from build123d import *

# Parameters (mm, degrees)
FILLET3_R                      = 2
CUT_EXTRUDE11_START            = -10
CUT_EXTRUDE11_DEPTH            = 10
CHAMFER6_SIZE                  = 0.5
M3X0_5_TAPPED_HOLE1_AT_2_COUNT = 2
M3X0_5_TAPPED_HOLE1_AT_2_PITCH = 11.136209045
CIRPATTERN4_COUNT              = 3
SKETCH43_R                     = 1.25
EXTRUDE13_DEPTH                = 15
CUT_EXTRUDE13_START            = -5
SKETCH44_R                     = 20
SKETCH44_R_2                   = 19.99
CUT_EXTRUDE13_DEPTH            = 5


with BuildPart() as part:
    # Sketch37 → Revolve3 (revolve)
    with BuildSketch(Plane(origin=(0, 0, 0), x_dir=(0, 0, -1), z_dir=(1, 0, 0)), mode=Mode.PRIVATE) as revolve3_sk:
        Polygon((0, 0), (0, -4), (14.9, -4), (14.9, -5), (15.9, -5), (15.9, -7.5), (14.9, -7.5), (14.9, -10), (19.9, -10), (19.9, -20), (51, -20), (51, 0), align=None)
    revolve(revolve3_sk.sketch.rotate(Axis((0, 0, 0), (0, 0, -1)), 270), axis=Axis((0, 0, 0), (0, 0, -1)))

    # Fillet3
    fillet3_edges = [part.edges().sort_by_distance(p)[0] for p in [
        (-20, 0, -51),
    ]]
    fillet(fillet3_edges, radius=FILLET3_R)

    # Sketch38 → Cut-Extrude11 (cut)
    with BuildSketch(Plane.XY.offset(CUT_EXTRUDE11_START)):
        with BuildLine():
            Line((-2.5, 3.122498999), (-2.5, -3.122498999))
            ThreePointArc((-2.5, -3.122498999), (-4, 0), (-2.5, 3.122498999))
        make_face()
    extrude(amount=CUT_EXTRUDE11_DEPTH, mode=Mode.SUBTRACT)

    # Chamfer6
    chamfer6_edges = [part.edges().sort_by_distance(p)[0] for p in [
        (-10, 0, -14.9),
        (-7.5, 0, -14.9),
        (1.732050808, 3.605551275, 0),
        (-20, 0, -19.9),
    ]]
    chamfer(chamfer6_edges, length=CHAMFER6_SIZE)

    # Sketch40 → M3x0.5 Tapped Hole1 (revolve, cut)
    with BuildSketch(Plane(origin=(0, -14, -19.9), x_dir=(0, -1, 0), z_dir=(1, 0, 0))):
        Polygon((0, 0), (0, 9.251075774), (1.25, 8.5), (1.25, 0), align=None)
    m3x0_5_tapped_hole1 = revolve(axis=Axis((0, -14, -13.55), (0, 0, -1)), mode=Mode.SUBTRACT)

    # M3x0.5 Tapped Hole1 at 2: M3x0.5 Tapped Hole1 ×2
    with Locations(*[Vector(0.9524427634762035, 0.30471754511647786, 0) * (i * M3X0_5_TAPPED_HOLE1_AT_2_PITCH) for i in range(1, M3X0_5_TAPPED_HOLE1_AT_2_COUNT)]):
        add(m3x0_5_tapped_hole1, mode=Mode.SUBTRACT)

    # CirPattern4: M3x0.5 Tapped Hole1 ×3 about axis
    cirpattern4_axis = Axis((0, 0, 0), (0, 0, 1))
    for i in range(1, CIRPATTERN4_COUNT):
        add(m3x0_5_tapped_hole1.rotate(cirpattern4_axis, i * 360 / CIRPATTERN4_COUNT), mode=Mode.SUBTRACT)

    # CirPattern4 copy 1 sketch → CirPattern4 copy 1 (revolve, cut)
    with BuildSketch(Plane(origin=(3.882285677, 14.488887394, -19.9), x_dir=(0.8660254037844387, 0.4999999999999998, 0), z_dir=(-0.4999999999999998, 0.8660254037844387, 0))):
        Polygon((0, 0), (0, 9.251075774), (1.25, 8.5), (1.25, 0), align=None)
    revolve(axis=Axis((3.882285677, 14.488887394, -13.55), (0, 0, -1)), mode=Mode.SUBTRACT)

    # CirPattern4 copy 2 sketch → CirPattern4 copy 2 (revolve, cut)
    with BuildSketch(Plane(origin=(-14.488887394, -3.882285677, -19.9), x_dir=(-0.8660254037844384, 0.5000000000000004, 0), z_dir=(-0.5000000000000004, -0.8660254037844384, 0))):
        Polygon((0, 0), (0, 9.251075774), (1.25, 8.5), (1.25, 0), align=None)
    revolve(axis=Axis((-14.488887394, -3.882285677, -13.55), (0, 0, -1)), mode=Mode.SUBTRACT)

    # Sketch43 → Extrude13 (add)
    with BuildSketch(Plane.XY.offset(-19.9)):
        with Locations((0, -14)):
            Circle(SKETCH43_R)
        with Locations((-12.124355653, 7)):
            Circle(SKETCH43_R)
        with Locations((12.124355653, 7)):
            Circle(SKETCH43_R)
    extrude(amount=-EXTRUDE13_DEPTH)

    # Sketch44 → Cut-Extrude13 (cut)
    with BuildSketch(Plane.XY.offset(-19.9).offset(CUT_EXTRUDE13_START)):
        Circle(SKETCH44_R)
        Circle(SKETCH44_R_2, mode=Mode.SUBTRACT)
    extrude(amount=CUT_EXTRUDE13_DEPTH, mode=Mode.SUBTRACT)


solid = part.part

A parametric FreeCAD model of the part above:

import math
import FreeCAD as App
import Part
import Sketcher
Q = App.Units.Quantity


def edges_at(feature, points):
    """Names of the edges that pass closest to the given points."""
    edges = feature.Shape.Edges
    near = lambda p: min(range(len(edges)), key=lambda i: edges[i].distToShape(Part.Vertex(*p))[0])
    return sorted({f"Edge{near(p) + 1}" for p in points})

doc = App.newDocument("Part")
body = doc.addObject("PartDesign::Body", "Body")

# Sketch on YZ plane
sketch1 = doc.addObject("Sketcher::SketchObject", "Sketch")
body.addObject(sketch1)
sketch1.AttachmentSupport = (doc.YZ_Plane, [""])
sketch1.MapMode = "FlatFace"
sketch1.addGeometry([
    Part.LineSegment(App.Vector(0, 0, 0), App.Vector(-4, 0, 0)),  # 0
    Part.LineSegment(App.Vector(-4, 0, 0), App.Vector(-4, -14.9, 0)),  # 1
    Part.LineSegment(App.Vector(-4, -14.9, 0), App.Vector(-5, -14.9, 0)),  # 2
    Part.LineSegment(App.Vector(-5, -14.9, 0), App.Vector(-5, -15.9, 0)),  # 3
    Part.LineSegment(App.Vector(-5, -15.9, 0), App.Vector(-7.5, -15.9, 0)),  # 4
    Part.LineSegment(App.Vector(-7.5, -15.9, 0), App.Vector(-7.5, -14.9, 0)),  # 5
    Part.LineSegment(App.Vector(-7.5, -14.9, 0), App.Vector(-10, -14.9, 0)),  # 6
    Part.LineSegment(App.Vector(-10, -14.9, 0), App.Vector(-10, -19.9, 0)),  # 7
    Part.LineSegment(App.Vector(-10, -19.9, 0), App.Vector(-20, -19.9, 0)),  # 8
    Part.LineSegment(App.Vector(-20, -19.9, 0), App.Vector(-20, -51, 0)),  # 9
    Part.LineSegment(App.Vector(-20, -51, 0), App.Vector(0, -51, 0)),  # 10
    Part.LineSegment(App.Vector(0, -51, 0), App.Vector(0, 0, 0)),  # 11
], False)
sketch1.addConstraint([
    Sketcher.Constraint("Coincident", 0, 2, 1, 1),
    Sketcher.Constraint("Coincident", 1, 2, 2, 1),
    Sketcher.Constraint("Coincident", 2, 2, 3, 1),
    Sketcher.Constraint("Coincident", 3, 2, 4, 1),
    Sketcher.Constraint("Coincident", 4, 2, 5, 1),
    Sketcher.Constraint("Coincident", 5, 2, 6, 1),
    Sketcher.Constraint("Coincident", 6, 2, 7, 1),
    Sketcher.Constraint("Coincident", 7, 2, 8, 1),
    Sketcher.Constraint("Coincident", 8, 2, 9, 1),
    Sketcher.Constraint("Coincident", 9, 2, 10, 1),
    Sketcher.Constraint("Coincident", 10, 2, 11, 1),
    Sketcher.Constraint("Coincident", 11, 2, 0, 1),
    Sketcher.Constraint("Horizontal", 0),
    Sketcher.Constraint("Vertical", 1),
    Sketcher.Constraint("Horizontal", 2),
    Sketcher.Constraint("Vertical", 3),
    Sketcher.Constraint("Horizontal", 4),
    Sketcher.Constraint("Vertical", 5),
    Sketcher.Constraint("Horizontal", 6),
    Sketcher.Constraint("Vertical", 7),
    Sketcher.Constraint("Horizontal", 8),
    Sketcher.Constraint("Vertical", 9),
    Sketcher.Constraint("Horizontal", 10),
    Sketcher.Constraint("Vertical", 11),
    Sketcher.Constraint("Coincident", 11, 2, -1, 1),
    Sketcher.Constraint("Horizontal", 2, 2, 5, 2),
    Sketcher.Constraint("Equal", 4, 6),
    Sketcher.Constraint("Equal", 2, 3),
    Sketcher.Constraint("DistanceX", 0, 2, 0, 1, 4.0),
    Sketcher.Constraint("DistanceX", 2, 2, 2, 1, 1.0),
    Sketcher.Constraint("DistanceX", 8, 2, 8, 1, 10.0),
    Sketcher.Constraint("DistanceX", 10, 1, 10, 2, 20.0),
    Sketcher.Constraint("DistanceY", 7, 2, 7, 1, 5.0),
    Sketcher.Constraint("DistanceY", 11, 1, 11, 2, 51.0),
    Sketcher.Constraint("DistanceY", 1, 2, 1, 1, 14.9),
])
revolution = doc.addObject("PartDesign::Revolution", "Revolution")
body.addObject(revolution)
revolution.Profile = sketch1
revolution.ReferenceAxis = (sketch1, ["V_Axis"])
revolution.Angle = 360
doc.recompute()

fillet = doc.addObject("PartDesign::Fillet", "Fillet")
body.addObject(fillet)
fillet.Base = (revolution, edges_at(revolution, [(-20, 0, -51)]))
fillet.Radius = 2

# Sketch on XY plane
sketch2 = doc.addObject("Sketcher::SketchObject", "Sketch001")
body.addObject(sketch2)
sketch2.AttachmentSupport = (doc.XY_Plane, [""])
sketch2.MapMode = "FlatFace"
sketch2.AttachmentOffset = App.Placement(App.Vector(0, 0, -10), App.Rotation())
sketch2.addGeometry([
    Part.LineSegment(App.Vector(-2.5, -3.1, 0), App.Vector(-2.5, 3.1, 0)),
    Part.ArcOfCircle(Part.Circle(App.Vector(0, 0, 0), App.Vector(0, 0, 1), 4), math.radians(129), math.radians(231)),
], False)
sketch2.addConstraint([
    Sketcher.Constraint("Coincident", 0, 1, 1, 2),
    Sketcher.Constraint("Coincident", 1, 1, 0, 2),
    Sketcher.Constraint("Vertical", 0),
    Sketcher.Constraint("Coincident", 1, 3, -1, 1),
    Sketcher.Constraint("Radius", 1, 4.0),
    Sketcher.Constraint("DistanceX", 0, 1, -1, 1, 2.5),
])
pocket1 = doc.addObject("PartDesign::Pocket", "Pocket")
body.addObject(pocket1)
pocket1.Profile = sketch2
pocket1.Length = 10
pocket1.Reversed = True
doc.recompute()

chamfer = doc.addObject("PartDesign::Chamfer", "Chamfer")
body.addObject(chamfer)
chamfer.Base = (pocket1, edges_at(pocket1, [
    (-10, 0, -14.9),
    (-7.5, 0, -14.9),
    (1.732, 3.606, 0),
    (-20, 0, -19.9),
]))
chamfer.Size = 0.5

# Sketch on YZ plane
sketch3 = doc.addObject("Sketcher::SketchObject", "Sketch002")
body.addObject(sketch3)
sketch3.AttachmentSupport = (doc.YZ_Plane, [""])
sketch3.MapMode = "FlatFace"
sketch3.addGeometry([
    Part.LineSegment(App.Vector(-14, -29.2, 0), App.Vector(-14, -19.9, 0)),
    Part.LineSegment(App.Vector(-14, -19.9, 0), App.Vector(-15.2, -19.9, 0)),
    Part.LineSegment(App.Vector(-15.2, -19.9, 0), App.Vector(-15.2, -28.4, 0)),
    Part.LineSegment(App.Vector(-15.2, -28.4, 0), App.Vector(-14, -29.2, 0)),
], False)
sketch3.addGeometry(Part.LineSegment(App.Vector(-14, -19.9, 0), App.Vector(-14, -29.2, 0)), True)  # axis
sketch3.addConstraint([
    Sketcher.Constraint("Coincident", 0, 2, 1, 1),
    Sketcher.Constraint("Coincident", 1, 2, 2, 1),
    Sketcher.Constraint("Coincident", 2, 2, 3, 1),
    Sketcher.Constraint("Coincident", 3, 2, 0, 1),
    Sketcher.Constraint("Vertical", 0),
    Sketcher.Constraint("Horizontal", 1),
    Sketcher.Constraint("Vertical", 2),
    Sketcher.Constraint("Vertical", 4),
    Sketcher.Constraint("Coincident", 4, 1, 0, 2),
    Sketcher.Constraint("Equal", 0, 4),
    Sketcher.Constraint("Angle", 3, Q("-31 deg")),
    Sketcher.Constraint("DistanceY", 2, 2, 2, 1, 8.5),
    Sketcher.Constraint("DistanceX", 0, 2, -1, 1, 14.0),
    Sketcher.Constraint("DistanceX", 1, 2, 1, 1, 1.25),
    Sketcher.Constraint("DistanceY", 0, 2, -1, 1, 19.9),
])
groove = doc.addObject("PartDesign::Groove", "Groove")
body.addObject(groove)
groove.Profile = sketch3
groove.ReferenceAxis = (sketch3, ["Axis0"])
groove.Angle = 360
doc.recompute()

datumline = doc.addObject("PartDesign::Line", "DatumLine")
body.addObject(datumline)
datumline.Placement = App.Placement(App.Vector(0, 0, 0), App.Rotation(App.Vector(0, 0, 1), App.Vector(0.952442763, 0.304717545, 0)))
linearpattern = doc.addObject("PartDesign::LinearPattern", "LinearPattern")
body.addObject(linearpattern)
linearpattern.Originals = [groove]
linearpattern.Direction = (datumline, [""])
linearpattern.Mode = "offset"
linearpattern.Offset = 11.136209
linearpattern.Occurrences = 2
body.Tip = linearpattern
doc.recompute()

polarpattern = doc.addObject("PartDesign::PolarPattern", "PolarPattern")
body.addObject(polarpattern)
polarpattern.Originals = [groove]
polarpattern.Axis = (doc.Z_Axis, [""])
polarpattern.Angle = 360
polarpattern.Occurrences = 3
body.Tip = polarpattern

# Sketch on an angled plane
sketch4 = doc.addObject("Sketcher::SketchObject", "Sketch003")
body.addObject(sketch4)
sketch4.Placement = App.Placement(App.Vector(3.882286, 14.488887, -19.9), App.Rotation(App.Vector(0.866025404, 0.5, 0), App.Vector(0, 0, -1), App.Vector(-0.5, 0.866025404, 0), "ZXY"))
sketch4.addGeometry([
    Part.LineSegment(App.Vector(0, 9.3, 0), App.Vector(0, 0, 0)),
    Part.LineSegment(App.Vector(0, 0, 0), App.Vector(1.2, 0, 0)),
    Part.LineSegment(App.Vector(1.2, 0, 0), App.Vector(1.2, 8.5, 0)),
    Part.LineSegment(App.Vector(1.2, 8.5, 0), App.Vector(0, 9.3, 0)),
], False)
sketch4.addConstraint([
    Sketcher.Constraint("Coincident", 0, 2, 1, 1),
    Sketcher.Constraint("Coincident", 1, 2, 2, 1),
    Sketcher.Constraint("Coincident", 2, 2, 3, 1),
    Sketcher.Constraint("Coincident", 3, 2, 0, 1),
    Sketcher.Constraint("Vertical", 0),
    Sketcher.Constraint("Horizontal", 1),
    Sketcher.Constraint("Vertical", 2),
    Sketcher.Constraint("Coincident", 0, 2, -1, 1),
    Sketcher.Constraint("Angle", 3, Q("149 deg")),
    Sketcher.Constraint("DistanceY", 2, 1, 2, 2, 8.5),
    Sketcher.Constraint("DistanceX", 1, 1, 1, 2, 1.25),
])
groove2 = doc.addObject("PartDesign::Groove", "Groove001")
body.addObject(groove2)
groove2.Profile = sketch4
groove2.ReferenceAxis = (sketch4, ["V_Axis"])
groove2.Angle = 360

# Sketch on an angled plane
sketch5 = doc.addObject("Sketcher::SketchObject", "Sketch004")
body.addObject(sketch5)
sketch5.Placement = App.Placement(App.Vector(-14.488887, -3.882286, -19.9), App.Rotation(App.Vector(-0.866025404, 0.5, 0), App.Vector(0, 0, -1), App.Vector(-0.5, -0.866025404, 0), "ZXY"))
sketch5.addGeometry([
    Part.LineSegment(App.Vector(0, 9.3, 0), App.Vector(0, 0, 0)),
    Part.LineSegment(App.Vector(0, 0, 0), App.Vector(1.2, 0, 0)),
    Part.LineSegment(App.Vector(1.2, 0, 0), App.Vector(1.2, 8.5, 0)),
    Part.LineSegment(App.Vector(1.2, 8.5, 0), App.Vector(0, 9.3, 0)),
], False)
sketch5.addConstraint([
    Sketcher.Constraint("Coincident", 0, 2, 1, 1),
    Sketcher.Constraint("Coincident", 1, 2, 2, 1),
    Sketcher.Constraint("Coincident", 2, 2, 3, 1),
    Sketcher.Constraint("Coincident", 3, 2, 0, 1),
    Sketcher.Constraint("Vertical", 0),
    Sketcher.Constraint("Horizontal", 1),
    Sketcher.Constraint("Vertical", 2),
    Sketcher.Constraint("Coincident", 0, 2, -1, 1),
    Sketcher.Constraint("Angle", 3, Q("149 deg")),
    Sketcher.Constraint("DistanceY", 2, 1, 2, 2, 8.5),
    Sketcher.Constraint("DistanceX", 1, 1, 1, 2, 1.25),
])
groove3 = doc.addObject("PartDesign::Groove", "Groove002")
body.addObject(groove3)
groove3.Profile = sketch5
groove3.ReferenceAxis = (sketch5, ["V_Axis"])
groove3.Angle = 360

# Sketch on XY plane
sketch6 = doc.addObject("Sketcher::SketchObject", "Sketch005")
body.addObject(sketch6)
sketch6.AttachmentSupport = (doc.XY_Plane, [""])
sketch6.MapMode = "FlatFace"
sketch6.AttachmentOffset = App.Placement(App.Vector(0, 0, -19.9), App.Rotation())
sketch6.addGeometry([
    Part.Circle(App.Vector(0, -14, 0), App.Vector(0, 0, 1), 1.2),
    Part.Circle(App.Vector(-12.1, 7, 0), App.Vector(0, 0, 1), 1.2),
    Part.Circle(App.Vector(12.1, 7, 0), App.Vector(0, 0, 1), 1.2),
], False)
sketch6.addConstraint([
    Sketcher.Constraint("Equal", 0, 1),
    Sketcher.Constraint("Equal", 1, 2),
    Sketcher.Constraint("Symmetric", 1, 3, 2, 3, -2),
    Sketcher.Constraint("PointOnObject", 0, 3, -2),
    Sketcher.Constraint("Diameter", 0, 2.5),
    Sketcher.Constraint("DistanceY", 0, 3, -1, 1, 14.0),
    Sketcher.Constraint("DistanceY", -1, 1, 1, 3, 7.0),
    Sketcher.Constraint("DistanceX", 1, 3, 2, 3, 24.248711),
])
pad1 = doc.addObject("PartDesign::Pad", "Pad")
body.addObject(pad1)
pad1.Profile = sketch6
pad1.Length = 15
pad1.Reversed = True

# Sketch on XY plane
sketch7 = doc.addObject("Sketcher::SketchObject", "Sketch006")
body.addObject(sketch7)
sketch7.AttachmentSupport = (doc.XY_Plane, [""])
sketch7.MapMode = "FlatFace"
sketch7.AttachmentOffset = App.Placement(App.Vector(0, 0, -24.9), App.Rotation())
sketch7.addGeometry([
    Part.Circle(App.Vector(0, 0, 0), App.Vector(0, 0, 1), 20),
    Part.Circle(App.Vector(0, 0, 0), App.Vector(0, 0, 1), 20),
], False)
sketch7.addConstraint([
    Sketcher.Constraint("Coincident", 0, 3, -1, 1),
    Sketcher.Constraint("Coincident", 1, 3, -1, 1),
    Sketcher.Constraint("Diameter", 0, 40.0),
    Sketcher.Constraint("Diameter", 1, 39.98),
])
pocket2 = doc.addObject("PartDesign::Pocket", "Pocket001")
body.addObject(pocket2)
pocket2.Profile = sketch7
pocket2.Length = 5
pocket2.Reversed = True

doc.recompute()
